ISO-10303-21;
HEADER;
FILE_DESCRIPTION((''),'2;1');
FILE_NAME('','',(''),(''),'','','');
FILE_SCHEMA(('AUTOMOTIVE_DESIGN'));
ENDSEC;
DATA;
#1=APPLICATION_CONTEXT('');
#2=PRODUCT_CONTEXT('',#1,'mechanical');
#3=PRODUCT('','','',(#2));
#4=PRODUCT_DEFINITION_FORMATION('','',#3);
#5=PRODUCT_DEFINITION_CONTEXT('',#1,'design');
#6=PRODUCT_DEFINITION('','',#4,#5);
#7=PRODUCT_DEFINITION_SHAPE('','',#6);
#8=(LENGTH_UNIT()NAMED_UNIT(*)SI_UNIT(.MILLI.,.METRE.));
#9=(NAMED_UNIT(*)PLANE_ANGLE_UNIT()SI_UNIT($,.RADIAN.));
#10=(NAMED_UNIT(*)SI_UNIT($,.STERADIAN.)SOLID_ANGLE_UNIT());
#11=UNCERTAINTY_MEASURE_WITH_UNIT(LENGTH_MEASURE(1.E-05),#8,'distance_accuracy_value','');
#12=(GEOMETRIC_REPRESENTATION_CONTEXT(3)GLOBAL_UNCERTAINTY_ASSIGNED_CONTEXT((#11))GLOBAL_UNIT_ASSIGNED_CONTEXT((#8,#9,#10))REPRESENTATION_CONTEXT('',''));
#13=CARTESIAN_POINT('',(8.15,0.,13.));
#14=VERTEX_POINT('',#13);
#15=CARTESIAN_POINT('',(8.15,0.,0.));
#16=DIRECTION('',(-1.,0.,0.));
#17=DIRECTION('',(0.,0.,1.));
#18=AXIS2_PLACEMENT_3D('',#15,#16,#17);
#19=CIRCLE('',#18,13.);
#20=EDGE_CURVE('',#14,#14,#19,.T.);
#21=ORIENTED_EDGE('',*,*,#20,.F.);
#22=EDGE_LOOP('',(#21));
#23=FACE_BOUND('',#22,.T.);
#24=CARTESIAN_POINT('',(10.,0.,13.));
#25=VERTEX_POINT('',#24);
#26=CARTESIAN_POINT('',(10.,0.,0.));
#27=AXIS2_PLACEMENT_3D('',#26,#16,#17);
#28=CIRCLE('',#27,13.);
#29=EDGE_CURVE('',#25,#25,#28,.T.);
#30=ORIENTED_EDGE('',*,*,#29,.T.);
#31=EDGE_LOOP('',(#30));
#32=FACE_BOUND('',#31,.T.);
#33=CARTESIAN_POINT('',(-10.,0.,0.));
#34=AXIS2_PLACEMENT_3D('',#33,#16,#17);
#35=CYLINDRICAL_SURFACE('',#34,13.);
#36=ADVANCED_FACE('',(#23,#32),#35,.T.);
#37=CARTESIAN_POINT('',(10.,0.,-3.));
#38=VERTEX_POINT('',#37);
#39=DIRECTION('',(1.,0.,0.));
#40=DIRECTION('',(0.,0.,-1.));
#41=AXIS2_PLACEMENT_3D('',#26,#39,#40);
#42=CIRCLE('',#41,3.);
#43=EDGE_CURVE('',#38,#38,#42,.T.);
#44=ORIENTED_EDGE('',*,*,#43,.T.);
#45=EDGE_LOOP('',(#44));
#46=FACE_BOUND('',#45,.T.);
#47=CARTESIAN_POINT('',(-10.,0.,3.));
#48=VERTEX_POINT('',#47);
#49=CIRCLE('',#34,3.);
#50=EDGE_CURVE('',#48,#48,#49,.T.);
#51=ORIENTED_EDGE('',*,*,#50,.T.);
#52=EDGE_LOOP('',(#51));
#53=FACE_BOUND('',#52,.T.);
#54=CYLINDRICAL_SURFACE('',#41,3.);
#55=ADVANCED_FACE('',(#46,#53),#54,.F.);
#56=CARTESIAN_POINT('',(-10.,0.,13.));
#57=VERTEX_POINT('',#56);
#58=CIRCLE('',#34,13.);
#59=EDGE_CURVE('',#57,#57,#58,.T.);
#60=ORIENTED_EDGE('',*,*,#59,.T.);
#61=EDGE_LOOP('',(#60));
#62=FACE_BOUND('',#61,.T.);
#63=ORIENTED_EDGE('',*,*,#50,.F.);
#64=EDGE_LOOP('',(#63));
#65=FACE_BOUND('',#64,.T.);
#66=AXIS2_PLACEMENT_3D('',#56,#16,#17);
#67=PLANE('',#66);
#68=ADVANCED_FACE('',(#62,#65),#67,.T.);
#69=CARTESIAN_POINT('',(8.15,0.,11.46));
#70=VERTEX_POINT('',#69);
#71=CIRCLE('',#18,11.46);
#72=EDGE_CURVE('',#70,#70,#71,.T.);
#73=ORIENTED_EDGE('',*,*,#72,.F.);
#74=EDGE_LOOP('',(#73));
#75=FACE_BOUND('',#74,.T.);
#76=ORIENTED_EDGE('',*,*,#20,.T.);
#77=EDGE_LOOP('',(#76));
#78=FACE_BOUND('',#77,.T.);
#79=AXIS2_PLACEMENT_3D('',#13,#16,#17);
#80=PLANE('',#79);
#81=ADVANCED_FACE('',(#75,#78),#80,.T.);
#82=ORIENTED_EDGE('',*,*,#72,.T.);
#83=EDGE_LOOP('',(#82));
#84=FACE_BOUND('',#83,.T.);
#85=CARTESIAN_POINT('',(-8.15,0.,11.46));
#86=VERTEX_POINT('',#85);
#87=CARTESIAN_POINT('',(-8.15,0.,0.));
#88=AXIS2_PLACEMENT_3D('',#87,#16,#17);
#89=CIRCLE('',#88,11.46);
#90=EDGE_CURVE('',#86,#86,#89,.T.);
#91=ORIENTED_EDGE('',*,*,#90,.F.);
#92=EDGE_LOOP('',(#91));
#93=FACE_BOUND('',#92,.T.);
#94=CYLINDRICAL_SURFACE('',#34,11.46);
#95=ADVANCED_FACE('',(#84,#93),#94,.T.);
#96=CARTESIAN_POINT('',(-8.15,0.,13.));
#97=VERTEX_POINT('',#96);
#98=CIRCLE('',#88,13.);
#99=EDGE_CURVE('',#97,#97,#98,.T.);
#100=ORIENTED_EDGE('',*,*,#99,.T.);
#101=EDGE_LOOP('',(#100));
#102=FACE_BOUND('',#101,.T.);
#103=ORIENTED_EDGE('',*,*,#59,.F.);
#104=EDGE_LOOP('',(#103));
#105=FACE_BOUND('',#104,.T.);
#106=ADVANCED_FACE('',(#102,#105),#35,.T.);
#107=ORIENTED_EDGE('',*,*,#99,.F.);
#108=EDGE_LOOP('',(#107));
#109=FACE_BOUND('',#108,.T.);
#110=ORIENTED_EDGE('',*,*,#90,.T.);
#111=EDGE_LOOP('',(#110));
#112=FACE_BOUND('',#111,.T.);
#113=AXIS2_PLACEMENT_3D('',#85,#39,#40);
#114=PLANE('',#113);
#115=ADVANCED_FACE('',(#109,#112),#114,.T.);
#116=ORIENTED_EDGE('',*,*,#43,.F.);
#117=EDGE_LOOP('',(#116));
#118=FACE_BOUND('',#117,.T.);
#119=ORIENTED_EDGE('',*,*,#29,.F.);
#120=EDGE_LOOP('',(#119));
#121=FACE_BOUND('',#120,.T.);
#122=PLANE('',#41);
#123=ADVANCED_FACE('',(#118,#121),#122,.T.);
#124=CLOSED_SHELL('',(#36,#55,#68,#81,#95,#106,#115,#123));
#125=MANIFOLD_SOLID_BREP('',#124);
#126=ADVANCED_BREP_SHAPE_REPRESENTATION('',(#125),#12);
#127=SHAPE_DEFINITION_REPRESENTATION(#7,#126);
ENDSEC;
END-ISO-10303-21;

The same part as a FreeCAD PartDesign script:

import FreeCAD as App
import Part
import Sketcher
from FreeCAD import Vector


def add_polygon(sketch, points):
    """Adds a closed chain of lines whose ends are joined by coincident constraints."""
    first, n = sketch.GeometryCount, len(points)
    for a, b in zip(points, points[1:] + points[:1]):
        sketch.addGeometry(Part.LineSegment(App.Vector(*a, 0), App.Vector(*b, 0)), False)
    for i in range(n):
        sketch.addConstraint(Sketcher.Constraint("Coincident", first + i, 2, first + (i + 1) % n, 1))

doc = App.newDocument("Part")
params = doc.addObject("Spreadsheet::Sheet", "Params")
for row, (alias, value) in enumerate([
    ("sketch1_width", "20 mm"),
    ("sketch1_height", "13 mm"),
    ("sketch1_width2", "16.3 mm"),
    ("sketch1_height2", "1.54 mm"),
    ("revolution_angle", "360 deg"),
    ("sketch2_diameter", "6 mm"),
    ("hole_diameter", "6 mm"),
    ("hole_depth", "24 mm"),
], start=1):
    params.set(f"A{row}", alias)
    params.set(f"B{row}", "=" + value)
    params.setAlias(f"B{row}", alias)

body = doc.addObject("PartDesign::Body", "Body")

sketch1 = doc.addObject("Sketcher::SketchObject", "Sketch")
body.addObject(sketch1)
sketch1.AttachmentSupport = (doc.XZ_Plane, [""])
sketch1.MapMode = "FlatFace"
add_polygon(sketch1, [(-8.15, 11.46), (8.15, 11.46), (8.15, 13), (10, 13), (10, 0), (-10, 0), (-10, 13), (-8.15, 13)])
sketch1.addConstraint([
    Sketcher.Constraint("Horizontal", 0),
    Sketcher.Constraint("Vertical", 1),
    Sketcher.Constraint("Horizontal", 2),
    Sketcher.Constraint("Vertical", 3),
    Sketcher.Constraint("Horizontal", 4),
    Sketcher.Constraint("Vertical", 5),
    Sketcher.Constraint("Horizontal", 6),
    Sketcher.Constraint("Vertical", 7),
    Sketcher.Constraint("Symmetric", 3, 2, 4, 2, -1, 1),
    Sketcher.Constraint("Symmetric", 1, 2, 6, 2, -2),
    Sketcher.Constraint("DistanceX", 4, 2, 4, 1, 20.0),
    Sketcher.Constraint("DistanceY", 3, 2, 3, 1, 13.0),
    Sketcher.Constraint("DistanceX", 0, 1, 0, 2, 16.3),
    Sketcher.Constraint("DistanceY", 1, 1, 1, 2, 1.54),
])
sketch1.setExpression("Constraints[18]", "Params.sketch1_width")
sketch1.setExpression("Constraints[19]", "Params.sketch1_height")
sketch1.setExpression("Constraints[20]", "Params.sketch1_width2")
sketch1.setExpression("Constraints[21]", "Params.sketch1_height2")
revolution = doc.addObject("PartDesign::Revolution", "Revolution")
body.addObject(revolution)
revolution.Profile = sketch1
revolution.ReferenceAxis = (sketch1, ["H_Axis"])
revolution.setExpression("Angle", "Params.revolution_angle")

sketch2 = doc.addObject("Sketcher::SketchObject", "Sketch001")
body.addObject(sketch2)
sketch2.AttachmentSupport = (doc.YZ_Plane, [""])
sketch2.MapMode = "FlatFace"
sketch2.AttachmentOffset = App.Placement(Vector(0, 0, 10), App.Rotation())
sketch2.addGeometry(Part.Circle(Vector(0, 0, 0), Vector(0, 0, 1), 3), False)
sketch2.addConstraint([
    Sketcher.Constraint("Coincident", 0, 3, -1, 1),
    Sketcher.Constraint("Diameter", 0, 6.0),
])
sketch2.setExpression("Constraints[1]", "Params.sketch2_diameter")
doc.recompute()
hole = doc.addObject("PartDesign::Hole", "Hole")
body.addObject(hole)
hole.Profile = sketch2
hole.ThreadType = "None"
hole.setExpression("Diameter", "Params.hole_diameter")
hole.DepthType = "Dimension"
hole.setExpression("Depth", "Params.hole_depth")
hole.DrillPoint = "Angled"
hole.DrillPointAngle = 118

doc.recompute()
